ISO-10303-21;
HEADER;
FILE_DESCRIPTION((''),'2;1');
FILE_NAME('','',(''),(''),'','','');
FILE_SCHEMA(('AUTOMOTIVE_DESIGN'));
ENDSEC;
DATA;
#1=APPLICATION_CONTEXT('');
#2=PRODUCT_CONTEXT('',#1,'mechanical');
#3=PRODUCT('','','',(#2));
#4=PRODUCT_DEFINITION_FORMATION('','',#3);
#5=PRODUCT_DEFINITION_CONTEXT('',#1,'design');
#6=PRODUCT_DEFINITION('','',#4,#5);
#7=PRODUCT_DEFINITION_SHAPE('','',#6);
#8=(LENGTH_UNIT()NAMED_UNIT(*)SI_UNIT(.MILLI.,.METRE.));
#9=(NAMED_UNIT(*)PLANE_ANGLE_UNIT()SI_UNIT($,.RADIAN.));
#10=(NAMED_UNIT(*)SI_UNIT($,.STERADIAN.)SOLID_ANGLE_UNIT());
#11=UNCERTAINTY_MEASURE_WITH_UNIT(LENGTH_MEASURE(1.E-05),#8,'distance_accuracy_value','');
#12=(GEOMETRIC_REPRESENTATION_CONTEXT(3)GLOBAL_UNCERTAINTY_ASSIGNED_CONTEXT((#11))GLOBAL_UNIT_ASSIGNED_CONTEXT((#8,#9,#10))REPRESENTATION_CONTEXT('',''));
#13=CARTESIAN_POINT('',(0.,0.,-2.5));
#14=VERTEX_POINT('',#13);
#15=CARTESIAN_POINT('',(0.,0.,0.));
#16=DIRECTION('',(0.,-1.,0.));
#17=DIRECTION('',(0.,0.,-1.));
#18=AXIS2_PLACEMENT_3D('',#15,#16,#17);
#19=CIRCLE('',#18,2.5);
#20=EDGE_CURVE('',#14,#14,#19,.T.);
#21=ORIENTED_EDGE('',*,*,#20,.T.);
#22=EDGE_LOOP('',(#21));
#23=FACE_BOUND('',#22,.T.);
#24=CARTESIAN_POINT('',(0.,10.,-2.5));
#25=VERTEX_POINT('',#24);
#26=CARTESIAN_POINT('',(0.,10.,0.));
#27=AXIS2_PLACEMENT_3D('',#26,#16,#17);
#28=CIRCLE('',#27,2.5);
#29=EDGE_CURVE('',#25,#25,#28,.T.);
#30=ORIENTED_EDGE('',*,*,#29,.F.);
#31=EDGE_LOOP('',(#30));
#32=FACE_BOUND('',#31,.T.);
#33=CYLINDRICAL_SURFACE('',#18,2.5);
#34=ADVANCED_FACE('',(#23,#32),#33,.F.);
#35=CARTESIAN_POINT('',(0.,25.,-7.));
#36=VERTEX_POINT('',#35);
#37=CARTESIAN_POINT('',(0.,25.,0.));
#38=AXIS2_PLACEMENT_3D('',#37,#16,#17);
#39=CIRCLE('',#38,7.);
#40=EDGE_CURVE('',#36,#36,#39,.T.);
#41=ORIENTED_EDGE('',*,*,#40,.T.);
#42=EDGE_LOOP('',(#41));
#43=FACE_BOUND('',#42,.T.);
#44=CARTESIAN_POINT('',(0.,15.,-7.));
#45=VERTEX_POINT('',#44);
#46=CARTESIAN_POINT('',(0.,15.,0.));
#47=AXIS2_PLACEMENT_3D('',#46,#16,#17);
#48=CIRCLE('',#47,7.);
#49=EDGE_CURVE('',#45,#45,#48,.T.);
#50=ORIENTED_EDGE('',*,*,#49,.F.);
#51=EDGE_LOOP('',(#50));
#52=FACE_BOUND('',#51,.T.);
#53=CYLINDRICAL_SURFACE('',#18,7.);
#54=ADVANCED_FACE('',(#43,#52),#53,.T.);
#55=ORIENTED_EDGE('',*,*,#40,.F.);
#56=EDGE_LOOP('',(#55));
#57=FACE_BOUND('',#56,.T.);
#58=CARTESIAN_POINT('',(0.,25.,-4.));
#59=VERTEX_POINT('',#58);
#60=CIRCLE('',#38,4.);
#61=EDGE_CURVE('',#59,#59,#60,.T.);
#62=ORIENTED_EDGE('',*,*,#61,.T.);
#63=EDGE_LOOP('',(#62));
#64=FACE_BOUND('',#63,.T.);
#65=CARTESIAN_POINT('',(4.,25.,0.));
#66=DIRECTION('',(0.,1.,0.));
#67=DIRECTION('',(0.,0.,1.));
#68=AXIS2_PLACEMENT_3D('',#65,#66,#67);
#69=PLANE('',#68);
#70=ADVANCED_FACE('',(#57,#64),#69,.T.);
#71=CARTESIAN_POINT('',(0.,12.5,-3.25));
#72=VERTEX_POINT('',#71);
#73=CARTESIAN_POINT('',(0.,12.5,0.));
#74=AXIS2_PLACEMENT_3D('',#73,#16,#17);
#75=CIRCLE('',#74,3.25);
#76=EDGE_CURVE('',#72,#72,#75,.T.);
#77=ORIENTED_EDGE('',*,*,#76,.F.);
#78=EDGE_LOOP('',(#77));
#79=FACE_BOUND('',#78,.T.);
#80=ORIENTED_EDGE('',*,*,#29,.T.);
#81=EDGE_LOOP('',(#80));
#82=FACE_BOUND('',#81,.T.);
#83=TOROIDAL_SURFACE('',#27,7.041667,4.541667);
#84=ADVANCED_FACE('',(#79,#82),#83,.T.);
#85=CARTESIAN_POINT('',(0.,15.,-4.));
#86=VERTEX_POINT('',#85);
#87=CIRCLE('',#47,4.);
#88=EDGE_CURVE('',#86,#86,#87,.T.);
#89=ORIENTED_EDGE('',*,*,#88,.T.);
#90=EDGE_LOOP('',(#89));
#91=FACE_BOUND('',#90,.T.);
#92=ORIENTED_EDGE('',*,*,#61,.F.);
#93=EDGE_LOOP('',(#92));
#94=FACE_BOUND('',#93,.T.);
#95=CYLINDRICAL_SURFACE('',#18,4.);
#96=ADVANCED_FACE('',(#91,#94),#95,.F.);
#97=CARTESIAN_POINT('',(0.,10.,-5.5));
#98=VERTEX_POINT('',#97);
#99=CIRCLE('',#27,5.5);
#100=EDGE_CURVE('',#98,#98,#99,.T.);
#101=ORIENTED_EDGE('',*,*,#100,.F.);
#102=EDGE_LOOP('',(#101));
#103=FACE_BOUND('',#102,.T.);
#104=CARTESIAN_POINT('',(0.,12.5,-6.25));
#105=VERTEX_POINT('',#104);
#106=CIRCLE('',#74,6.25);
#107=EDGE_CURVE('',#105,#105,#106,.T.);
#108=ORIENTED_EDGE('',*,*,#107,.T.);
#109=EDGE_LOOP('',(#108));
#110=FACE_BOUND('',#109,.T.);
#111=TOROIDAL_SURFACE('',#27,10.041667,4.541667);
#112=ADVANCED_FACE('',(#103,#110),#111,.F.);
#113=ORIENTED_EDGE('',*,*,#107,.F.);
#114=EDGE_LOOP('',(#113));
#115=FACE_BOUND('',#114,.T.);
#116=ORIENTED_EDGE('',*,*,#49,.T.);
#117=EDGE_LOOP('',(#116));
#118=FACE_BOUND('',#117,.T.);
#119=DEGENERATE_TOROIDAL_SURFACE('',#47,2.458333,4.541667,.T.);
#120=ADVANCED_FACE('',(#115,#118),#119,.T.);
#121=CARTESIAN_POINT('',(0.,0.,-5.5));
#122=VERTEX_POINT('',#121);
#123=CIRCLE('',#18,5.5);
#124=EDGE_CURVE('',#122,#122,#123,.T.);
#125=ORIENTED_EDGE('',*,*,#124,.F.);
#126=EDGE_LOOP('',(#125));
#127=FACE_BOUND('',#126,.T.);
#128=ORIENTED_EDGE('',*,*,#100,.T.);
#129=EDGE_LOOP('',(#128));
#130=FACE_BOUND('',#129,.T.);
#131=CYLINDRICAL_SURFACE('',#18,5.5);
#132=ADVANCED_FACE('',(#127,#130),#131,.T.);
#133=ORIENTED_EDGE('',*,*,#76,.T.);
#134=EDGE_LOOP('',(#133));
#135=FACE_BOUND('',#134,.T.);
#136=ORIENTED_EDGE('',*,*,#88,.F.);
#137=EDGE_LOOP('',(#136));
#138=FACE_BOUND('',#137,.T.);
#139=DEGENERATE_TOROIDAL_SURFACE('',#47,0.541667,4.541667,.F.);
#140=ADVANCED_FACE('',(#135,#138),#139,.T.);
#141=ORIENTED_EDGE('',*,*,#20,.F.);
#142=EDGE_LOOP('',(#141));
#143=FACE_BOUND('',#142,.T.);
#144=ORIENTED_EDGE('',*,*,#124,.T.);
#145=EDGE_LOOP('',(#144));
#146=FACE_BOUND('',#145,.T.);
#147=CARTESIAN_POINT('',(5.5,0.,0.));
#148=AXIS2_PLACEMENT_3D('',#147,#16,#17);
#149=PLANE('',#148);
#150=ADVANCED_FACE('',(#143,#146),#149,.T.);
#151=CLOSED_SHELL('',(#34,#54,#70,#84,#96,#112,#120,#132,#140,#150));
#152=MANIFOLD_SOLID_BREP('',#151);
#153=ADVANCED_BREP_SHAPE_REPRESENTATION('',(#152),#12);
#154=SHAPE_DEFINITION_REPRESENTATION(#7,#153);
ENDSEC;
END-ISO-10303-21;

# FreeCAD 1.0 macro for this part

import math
import FreeCAD as App
import Part
import Sketcher
from FreeCAD import Vector

doc = App.newDocument("Part")
body = doc.addObject("PartDesign::Body", "Body")

# Sketch on XY plane
sketch1 = doc.addObject("Sketcher::SketchObject", "Sketch")
body.addObject(sketch1)
sketch1.AttachmentSupport = (doc.XY_Plane, [""])
sketch1.MapMode = "FlatFace"
sketch1.addGeometry([
    Part.LineSegment(Vector(2.5, 10, 0), Vector(2.5, 0, 0)),  # 0
    Part.LineSegment(Vector(2.5, 0, 0), Vector(5.5, 0, 0)),  # 1
    Part.LineSegment(Vector(5.5, 0, 0), Vector(5.5, 10, 0)),  # 2
    Part.ArcOfCircle(Part.Circle(Vector(10, 10, 0), Vector(0, 0, 1), 4.5), math.radians(147), math.radians(180)),  # 3
    Part.ArcOfCircle(Part.Circle(Vector(2.5, 15, 0), Vector(0, 0, 1), 4.5), math.radians(-33), math.radians(0)),  # 4
    Part.LineSegment(Vector(7, 15, 0), Vector(7, 25, 0)),  # 5
    Part.LineSegment(Vector(7, 25, 0), Vector(4, 25, 0)),  # 6
    Part.LineSegment(Vector(4, 25, 0), Vector(4, 15, 0)),  # 7
    Part.ArcOfCircle(Part.Circle(Vector(-0.5, 15, 0), Vector(0, 0, 1), 4.5), math.radians(-33), math.radians(0)),  # 8
    Part.ArcOfCircle(Part.Circle(Vector(7, 10, 0), Vector(0, 0, 1), 4.5), math.radians(147), math.radians(180)),  # 9
], False)
sketch1.addConstraint([
    Sketcher.Constraint("Coincident", 0, 2, 1, 1),
    Sketcher.Constraint("Coincident", 1, 2, 2, 1),
    Sketcher.Constraint("Tangent", 2, 2, 3, 2),
    Sketcher.Constraint("Tangent", 3, 1, 4, 1),
    Sketcher.Constraint("Tangent", 4, 2, 5, 1),
    Sketcher.Constraint("Coincident", 5, 2, 6, 1),
    Sketcher.Constraint("Coincident", 6, 2, 7, 1),
    Sketcher.Constraint("Tangent", 7, 2, 8, 2),
    Sketcher.Constraint("Tangent", 8, 1, 9, 1),
    Sketcher.Constraint("Tangent", 9, 2, 0, 1),
    Sketcher.Constraint("Vertical", 0),
    Sketcher.Constraint("Horizontal", 1),
    Sketcher.Constraint("Vertical", 2),
    Sketcher.Constraint("Vertical", 5),
    Sketcher.Constraint("Horizontal", 6),
    Sketcher.Constraint("Vertical", 7),
    Sketcher.Constraint("Equal", 3, 4),
    Sketcher.Constraint("Equal", 4, 8),
    Sketcher.Constraint("Equal", 8, 9),
    Sketcher.Constraint("PointOnObject", 0, 2, -1),
    Sketcher.Constraint("Horizontal", 4, 3, 8, 3),
    Sketcher.Constraint("Horizontal", 3, 3, 9, 3),
    Sketcher.Constraint("Equal", 2, 5),
    Sketcher.Constraint("DistanceX", 1, 1, 1, 2, 3.0),
    Sketcher.Constraint("DistanceY", 0, 2, 0, 1, 10.0),
    Sketcher.Constraint("DistanceY", -1, 1, 4, 3, 15.0),
    Sketcher.Constraint("DistanceX", -1, 1, 4, 2, 7.0),
    Sketcher.Constraint("DistanceX", -1, 1, 0, 2, 2.5),
])
revolution = doc.addObject("PartDesign::Revolution", "Revolution")
body.addObject(revolution)
revolution.Profile = sketch1
revolution.ReferenceAxis = (sketch1, ["V_Axis"])
revolution.Angle = 360

doc.recompute()
